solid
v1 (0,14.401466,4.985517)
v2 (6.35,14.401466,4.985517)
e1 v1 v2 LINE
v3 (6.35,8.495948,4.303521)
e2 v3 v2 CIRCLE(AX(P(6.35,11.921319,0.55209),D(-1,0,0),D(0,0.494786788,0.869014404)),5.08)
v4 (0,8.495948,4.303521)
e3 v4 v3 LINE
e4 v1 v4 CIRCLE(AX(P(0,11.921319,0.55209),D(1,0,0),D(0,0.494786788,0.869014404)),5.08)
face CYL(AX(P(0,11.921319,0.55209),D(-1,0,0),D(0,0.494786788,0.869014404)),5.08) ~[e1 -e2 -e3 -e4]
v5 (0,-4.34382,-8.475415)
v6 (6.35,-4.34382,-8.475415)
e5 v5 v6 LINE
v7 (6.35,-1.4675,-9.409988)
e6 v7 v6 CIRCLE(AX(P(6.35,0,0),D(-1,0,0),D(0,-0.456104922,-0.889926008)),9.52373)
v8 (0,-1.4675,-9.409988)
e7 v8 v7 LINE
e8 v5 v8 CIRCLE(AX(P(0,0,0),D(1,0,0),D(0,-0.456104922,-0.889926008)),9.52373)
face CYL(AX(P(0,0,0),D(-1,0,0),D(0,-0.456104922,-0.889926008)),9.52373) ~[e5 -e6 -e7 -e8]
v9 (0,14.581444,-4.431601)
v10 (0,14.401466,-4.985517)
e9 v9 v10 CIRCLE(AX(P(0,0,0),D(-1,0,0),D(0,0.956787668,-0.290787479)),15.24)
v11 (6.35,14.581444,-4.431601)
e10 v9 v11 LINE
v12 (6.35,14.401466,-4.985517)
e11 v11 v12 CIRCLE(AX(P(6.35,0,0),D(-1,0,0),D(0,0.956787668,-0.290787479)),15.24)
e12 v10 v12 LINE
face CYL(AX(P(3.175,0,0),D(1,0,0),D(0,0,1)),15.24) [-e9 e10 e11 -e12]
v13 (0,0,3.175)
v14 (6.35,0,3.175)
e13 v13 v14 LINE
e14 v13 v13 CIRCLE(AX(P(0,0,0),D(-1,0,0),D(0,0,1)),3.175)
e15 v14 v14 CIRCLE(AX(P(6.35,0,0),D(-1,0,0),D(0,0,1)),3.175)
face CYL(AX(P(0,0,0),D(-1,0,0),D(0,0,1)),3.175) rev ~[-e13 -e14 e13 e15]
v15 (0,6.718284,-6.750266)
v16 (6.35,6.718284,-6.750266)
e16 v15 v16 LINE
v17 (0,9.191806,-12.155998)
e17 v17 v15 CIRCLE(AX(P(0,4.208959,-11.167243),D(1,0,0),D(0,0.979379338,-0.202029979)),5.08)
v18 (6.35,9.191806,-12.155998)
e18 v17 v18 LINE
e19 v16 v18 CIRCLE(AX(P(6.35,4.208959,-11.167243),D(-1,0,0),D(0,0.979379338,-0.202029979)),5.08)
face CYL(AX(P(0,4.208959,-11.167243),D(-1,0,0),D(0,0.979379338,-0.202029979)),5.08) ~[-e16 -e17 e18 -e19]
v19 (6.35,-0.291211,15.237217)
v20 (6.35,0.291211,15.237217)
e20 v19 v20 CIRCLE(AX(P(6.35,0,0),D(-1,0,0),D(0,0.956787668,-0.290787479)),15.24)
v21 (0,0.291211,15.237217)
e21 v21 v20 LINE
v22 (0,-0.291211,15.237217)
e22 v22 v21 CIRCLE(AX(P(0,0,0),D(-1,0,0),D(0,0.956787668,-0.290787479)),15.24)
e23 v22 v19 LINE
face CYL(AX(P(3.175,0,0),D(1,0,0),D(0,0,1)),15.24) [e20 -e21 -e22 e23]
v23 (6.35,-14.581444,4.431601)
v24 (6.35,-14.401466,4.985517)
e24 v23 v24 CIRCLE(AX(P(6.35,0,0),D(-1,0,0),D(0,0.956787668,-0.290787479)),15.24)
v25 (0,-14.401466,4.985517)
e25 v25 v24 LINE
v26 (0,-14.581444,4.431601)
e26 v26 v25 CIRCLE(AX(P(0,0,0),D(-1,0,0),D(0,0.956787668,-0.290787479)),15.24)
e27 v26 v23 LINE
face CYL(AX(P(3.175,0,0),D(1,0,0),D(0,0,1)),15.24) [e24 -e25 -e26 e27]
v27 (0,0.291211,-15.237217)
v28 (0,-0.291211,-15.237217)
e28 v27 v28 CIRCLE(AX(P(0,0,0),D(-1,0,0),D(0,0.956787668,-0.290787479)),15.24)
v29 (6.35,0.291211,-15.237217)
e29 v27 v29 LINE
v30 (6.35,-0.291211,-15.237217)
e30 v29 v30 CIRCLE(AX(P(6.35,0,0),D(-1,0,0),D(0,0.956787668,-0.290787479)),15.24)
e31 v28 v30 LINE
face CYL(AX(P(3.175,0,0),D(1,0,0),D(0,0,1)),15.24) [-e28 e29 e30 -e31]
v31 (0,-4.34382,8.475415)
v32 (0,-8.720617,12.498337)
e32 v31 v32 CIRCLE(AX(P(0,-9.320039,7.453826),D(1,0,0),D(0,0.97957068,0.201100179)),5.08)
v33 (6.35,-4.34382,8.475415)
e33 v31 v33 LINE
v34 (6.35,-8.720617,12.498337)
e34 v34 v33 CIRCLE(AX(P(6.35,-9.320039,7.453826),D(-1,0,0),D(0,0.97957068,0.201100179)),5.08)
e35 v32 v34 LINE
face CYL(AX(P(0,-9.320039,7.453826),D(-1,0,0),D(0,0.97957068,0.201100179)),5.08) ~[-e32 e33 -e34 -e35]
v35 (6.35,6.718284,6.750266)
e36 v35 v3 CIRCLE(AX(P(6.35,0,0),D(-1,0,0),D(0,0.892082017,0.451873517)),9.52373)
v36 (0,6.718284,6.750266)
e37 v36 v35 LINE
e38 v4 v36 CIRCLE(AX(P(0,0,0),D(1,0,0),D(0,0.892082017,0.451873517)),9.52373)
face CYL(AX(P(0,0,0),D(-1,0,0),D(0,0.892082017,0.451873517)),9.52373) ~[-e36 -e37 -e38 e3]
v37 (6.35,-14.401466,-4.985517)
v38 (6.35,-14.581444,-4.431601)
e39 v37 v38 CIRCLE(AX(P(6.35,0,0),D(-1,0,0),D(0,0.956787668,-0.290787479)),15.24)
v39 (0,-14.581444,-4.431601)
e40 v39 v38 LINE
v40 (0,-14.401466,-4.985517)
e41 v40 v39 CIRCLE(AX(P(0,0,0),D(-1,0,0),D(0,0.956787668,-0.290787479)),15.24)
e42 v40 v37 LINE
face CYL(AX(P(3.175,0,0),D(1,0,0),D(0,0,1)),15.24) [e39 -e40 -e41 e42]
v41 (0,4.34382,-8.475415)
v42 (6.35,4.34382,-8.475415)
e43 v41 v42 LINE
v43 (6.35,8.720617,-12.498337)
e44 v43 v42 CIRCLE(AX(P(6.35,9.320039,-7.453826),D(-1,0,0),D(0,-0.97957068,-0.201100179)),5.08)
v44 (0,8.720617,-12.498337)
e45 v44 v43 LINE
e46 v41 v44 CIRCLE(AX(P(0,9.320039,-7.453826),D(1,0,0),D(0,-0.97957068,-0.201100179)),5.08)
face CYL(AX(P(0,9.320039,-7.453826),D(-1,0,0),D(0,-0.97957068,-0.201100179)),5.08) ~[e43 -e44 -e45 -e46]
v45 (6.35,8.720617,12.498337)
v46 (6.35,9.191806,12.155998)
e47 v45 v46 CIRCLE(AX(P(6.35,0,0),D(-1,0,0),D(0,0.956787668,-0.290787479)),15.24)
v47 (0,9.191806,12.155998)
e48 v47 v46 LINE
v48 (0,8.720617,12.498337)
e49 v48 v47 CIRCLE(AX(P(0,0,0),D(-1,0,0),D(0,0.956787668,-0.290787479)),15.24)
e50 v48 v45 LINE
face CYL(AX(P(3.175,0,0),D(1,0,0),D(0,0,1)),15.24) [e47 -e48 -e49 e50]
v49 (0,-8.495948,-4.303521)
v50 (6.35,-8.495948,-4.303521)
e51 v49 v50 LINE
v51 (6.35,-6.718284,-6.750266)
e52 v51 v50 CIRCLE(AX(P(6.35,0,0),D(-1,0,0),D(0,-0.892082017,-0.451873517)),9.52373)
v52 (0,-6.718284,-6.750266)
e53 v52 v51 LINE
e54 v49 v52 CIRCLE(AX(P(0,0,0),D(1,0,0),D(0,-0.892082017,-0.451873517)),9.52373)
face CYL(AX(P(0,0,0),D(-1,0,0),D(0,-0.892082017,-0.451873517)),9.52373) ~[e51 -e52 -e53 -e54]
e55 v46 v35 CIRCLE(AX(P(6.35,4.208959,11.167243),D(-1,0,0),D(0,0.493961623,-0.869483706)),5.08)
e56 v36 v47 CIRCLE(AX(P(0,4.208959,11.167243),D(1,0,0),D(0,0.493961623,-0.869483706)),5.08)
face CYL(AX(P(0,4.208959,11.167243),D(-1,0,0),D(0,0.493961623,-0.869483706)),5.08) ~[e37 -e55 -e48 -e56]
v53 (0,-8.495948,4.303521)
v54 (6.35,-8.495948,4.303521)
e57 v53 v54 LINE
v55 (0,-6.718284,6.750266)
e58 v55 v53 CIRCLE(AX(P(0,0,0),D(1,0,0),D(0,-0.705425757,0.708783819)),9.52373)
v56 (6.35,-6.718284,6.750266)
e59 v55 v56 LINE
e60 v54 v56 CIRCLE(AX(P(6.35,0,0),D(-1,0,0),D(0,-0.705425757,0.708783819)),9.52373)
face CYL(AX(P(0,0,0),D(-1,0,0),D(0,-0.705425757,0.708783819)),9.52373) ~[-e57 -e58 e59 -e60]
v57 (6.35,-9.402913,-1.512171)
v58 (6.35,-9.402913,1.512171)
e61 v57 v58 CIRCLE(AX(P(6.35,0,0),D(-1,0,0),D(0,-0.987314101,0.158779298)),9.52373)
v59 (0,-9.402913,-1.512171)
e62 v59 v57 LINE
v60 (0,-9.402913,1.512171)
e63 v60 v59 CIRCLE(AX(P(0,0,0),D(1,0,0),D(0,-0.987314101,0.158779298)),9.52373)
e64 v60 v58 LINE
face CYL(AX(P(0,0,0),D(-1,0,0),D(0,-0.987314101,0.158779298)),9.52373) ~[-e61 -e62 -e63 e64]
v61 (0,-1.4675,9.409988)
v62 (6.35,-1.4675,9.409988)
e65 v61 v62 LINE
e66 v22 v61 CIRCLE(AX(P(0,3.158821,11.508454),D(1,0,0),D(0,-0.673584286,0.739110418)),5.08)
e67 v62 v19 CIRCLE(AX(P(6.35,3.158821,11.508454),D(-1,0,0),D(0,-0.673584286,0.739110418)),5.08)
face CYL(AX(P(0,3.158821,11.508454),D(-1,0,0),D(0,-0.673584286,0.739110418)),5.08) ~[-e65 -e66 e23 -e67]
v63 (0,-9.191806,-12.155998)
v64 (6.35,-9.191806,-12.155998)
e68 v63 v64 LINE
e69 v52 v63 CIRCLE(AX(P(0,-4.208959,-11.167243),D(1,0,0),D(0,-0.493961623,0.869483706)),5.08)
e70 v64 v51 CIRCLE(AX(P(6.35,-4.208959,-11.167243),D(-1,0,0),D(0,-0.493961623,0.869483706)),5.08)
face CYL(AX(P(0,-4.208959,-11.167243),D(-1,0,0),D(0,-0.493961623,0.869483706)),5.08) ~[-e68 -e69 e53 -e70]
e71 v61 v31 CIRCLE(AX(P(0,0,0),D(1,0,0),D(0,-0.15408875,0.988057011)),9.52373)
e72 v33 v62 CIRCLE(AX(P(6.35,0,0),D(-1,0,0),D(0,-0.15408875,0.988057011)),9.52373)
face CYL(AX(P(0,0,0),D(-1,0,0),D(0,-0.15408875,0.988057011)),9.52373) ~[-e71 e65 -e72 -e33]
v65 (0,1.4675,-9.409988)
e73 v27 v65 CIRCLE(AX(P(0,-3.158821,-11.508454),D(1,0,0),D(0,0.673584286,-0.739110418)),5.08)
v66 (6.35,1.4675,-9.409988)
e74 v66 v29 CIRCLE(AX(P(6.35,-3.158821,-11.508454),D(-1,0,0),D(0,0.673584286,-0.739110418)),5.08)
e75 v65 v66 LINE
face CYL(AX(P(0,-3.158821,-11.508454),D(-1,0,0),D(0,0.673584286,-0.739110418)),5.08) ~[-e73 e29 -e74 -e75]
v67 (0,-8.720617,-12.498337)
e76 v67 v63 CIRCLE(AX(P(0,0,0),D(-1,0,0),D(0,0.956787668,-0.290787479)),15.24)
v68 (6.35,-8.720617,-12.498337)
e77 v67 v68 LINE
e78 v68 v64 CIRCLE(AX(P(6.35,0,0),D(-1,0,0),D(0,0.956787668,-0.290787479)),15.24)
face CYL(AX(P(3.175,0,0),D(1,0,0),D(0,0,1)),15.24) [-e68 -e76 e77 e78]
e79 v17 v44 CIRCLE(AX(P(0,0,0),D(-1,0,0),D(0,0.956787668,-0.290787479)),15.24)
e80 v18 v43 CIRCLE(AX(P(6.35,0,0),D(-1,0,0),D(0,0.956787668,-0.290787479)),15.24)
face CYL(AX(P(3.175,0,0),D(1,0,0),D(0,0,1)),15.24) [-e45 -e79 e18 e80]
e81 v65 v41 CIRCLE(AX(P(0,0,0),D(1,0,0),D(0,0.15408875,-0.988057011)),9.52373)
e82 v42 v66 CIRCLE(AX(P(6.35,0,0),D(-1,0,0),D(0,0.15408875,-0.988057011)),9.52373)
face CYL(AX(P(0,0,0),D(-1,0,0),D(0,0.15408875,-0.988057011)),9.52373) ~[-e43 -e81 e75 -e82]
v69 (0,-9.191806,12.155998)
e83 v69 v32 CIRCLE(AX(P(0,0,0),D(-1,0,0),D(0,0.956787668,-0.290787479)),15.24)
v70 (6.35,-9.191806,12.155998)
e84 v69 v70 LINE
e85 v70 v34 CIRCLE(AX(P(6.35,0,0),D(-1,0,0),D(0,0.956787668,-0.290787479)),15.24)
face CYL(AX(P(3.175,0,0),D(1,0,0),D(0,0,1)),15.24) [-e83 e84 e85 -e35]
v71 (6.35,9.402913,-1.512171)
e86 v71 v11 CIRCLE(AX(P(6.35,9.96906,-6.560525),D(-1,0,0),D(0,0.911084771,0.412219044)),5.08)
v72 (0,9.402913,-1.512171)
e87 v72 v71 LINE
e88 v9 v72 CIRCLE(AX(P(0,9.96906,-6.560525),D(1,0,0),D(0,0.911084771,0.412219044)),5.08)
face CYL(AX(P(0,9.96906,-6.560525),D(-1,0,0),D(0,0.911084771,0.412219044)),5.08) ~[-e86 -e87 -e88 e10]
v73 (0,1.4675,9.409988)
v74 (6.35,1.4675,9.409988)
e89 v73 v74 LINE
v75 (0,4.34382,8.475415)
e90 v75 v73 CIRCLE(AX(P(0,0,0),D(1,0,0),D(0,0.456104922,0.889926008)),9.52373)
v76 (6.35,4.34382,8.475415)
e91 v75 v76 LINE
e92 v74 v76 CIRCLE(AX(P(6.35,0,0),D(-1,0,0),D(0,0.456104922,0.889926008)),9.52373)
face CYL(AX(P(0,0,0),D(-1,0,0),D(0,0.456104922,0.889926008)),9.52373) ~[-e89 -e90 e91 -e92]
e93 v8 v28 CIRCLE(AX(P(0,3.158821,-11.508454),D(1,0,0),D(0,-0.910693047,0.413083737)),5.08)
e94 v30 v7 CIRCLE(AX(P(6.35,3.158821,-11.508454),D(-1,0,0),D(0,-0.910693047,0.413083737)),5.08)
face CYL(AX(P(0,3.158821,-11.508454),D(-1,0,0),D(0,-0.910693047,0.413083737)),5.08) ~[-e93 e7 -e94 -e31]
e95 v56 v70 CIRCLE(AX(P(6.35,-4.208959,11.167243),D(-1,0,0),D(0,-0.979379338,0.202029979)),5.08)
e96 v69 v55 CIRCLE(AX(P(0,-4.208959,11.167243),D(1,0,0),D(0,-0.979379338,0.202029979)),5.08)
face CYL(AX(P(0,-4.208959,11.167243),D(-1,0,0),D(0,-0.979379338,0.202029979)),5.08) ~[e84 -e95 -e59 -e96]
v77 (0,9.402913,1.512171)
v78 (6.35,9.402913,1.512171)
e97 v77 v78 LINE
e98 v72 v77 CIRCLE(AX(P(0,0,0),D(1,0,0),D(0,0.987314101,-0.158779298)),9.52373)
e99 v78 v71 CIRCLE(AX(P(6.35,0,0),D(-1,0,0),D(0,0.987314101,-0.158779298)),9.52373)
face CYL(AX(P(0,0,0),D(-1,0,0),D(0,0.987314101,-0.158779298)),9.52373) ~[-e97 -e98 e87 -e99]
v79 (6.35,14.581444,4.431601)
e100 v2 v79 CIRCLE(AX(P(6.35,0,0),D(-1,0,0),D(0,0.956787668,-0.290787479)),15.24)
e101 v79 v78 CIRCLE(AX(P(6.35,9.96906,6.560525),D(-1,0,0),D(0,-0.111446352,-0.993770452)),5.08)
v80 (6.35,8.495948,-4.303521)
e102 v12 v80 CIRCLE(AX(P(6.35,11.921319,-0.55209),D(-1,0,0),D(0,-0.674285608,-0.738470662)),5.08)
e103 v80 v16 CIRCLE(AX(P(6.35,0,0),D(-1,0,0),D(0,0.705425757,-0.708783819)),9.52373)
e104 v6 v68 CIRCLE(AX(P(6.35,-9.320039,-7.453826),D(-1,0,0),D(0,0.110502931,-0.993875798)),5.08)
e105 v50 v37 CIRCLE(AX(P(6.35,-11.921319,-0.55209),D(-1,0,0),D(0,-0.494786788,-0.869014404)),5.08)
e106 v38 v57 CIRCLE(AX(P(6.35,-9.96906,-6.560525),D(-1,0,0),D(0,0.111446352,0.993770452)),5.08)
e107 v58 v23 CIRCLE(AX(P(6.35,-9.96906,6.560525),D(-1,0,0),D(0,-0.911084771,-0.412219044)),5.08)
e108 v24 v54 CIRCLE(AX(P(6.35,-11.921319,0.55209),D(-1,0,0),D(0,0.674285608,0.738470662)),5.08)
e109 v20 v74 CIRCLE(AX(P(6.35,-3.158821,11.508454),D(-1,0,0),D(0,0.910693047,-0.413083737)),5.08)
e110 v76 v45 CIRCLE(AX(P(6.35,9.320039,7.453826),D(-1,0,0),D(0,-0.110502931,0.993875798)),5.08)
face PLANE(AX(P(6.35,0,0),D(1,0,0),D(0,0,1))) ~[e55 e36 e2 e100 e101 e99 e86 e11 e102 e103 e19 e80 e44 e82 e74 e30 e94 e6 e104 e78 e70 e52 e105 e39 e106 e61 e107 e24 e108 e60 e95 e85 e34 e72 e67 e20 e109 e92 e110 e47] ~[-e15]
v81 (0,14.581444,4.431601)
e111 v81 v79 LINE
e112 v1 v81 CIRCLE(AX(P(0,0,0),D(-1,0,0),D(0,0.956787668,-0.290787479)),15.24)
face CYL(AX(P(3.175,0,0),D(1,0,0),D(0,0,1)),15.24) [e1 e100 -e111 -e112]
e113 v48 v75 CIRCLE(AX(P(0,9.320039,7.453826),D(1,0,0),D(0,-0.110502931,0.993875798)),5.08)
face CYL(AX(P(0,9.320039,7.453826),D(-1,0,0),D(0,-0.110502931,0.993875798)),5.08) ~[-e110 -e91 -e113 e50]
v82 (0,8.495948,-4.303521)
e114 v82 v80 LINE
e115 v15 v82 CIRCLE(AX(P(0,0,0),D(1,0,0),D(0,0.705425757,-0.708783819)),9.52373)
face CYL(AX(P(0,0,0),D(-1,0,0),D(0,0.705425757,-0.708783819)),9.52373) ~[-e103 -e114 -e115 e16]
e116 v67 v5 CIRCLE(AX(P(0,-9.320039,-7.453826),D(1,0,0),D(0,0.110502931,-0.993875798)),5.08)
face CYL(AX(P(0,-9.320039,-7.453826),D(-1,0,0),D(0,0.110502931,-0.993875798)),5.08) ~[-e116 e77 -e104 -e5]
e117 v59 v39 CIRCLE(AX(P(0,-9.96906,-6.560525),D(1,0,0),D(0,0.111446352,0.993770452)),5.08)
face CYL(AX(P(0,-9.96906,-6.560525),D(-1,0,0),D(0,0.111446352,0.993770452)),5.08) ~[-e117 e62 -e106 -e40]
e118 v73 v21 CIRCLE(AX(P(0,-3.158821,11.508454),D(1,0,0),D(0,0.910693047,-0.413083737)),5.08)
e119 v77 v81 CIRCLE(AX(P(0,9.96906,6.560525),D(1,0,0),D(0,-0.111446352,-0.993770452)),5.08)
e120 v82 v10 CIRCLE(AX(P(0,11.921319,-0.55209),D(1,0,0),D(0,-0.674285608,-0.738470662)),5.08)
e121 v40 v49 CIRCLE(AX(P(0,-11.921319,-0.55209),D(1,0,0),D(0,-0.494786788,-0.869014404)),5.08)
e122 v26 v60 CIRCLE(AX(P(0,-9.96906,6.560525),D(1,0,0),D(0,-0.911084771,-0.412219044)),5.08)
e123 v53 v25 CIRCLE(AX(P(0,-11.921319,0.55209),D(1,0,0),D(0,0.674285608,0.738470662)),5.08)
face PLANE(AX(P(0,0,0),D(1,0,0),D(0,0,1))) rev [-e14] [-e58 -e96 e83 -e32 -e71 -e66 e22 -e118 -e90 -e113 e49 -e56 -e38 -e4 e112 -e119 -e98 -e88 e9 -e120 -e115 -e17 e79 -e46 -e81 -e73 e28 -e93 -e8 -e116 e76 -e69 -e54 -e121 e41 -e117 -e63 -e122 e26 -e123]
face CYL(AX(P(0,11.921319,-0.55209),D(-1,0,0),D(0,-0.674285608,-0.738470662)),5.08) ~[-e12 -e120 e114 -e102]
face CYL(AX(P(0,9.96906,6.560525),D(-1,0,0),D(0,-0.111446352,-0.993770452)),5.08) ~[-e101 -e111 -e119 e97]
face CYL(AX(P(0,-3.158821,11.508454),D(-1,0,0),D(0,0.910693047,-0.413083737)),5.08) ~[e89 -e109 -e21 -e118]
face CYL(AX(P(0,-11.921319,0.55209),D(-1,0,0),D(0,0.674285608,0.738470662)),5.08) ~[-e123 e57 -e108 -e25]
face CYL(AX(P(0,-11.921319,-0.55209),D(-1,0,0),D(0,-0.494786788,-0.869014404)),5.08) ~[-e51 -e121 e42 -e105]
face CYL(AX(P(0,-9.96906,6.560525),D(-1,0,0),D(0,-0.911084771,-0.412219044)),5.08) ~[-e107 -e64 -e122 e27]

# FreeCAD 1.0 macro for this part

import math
import FreeCAD as App
import Part
import Sketcher
from FreeCAD import Vector
Q = App.Units.Quantity

doc = App.newDocument("Part")
params = doc.addObject("Spreadsheet::Sheet", "Params")
for row, (alias, value) in enumerate([
    ("sketch1_height", "0.6 in"),
    ("sketch1_width", "0.25 in"),
    ("revolution_angle", "360 deg"),
    ("sketch2_radius", "0.2 in"),
    ("sketch2_radius2", "0.601 in"),
    ("sketch3_diameter", "0.03125 in"),
    ("pocket2_length", "101.600102 mm"),
    ("sketch4_height", "0.01 in"),
    ("pocket3_length", "101.600102 mm"),
    ("sketch5_diameter", "0.25 in"),
], start=1):
    params.set(f"A{row}", alias)
    params.set(f"B{row}", "=" + value)
    params.setAlias(f"B{row}", alias)

body = doc.addObject("PartDesign::Body", "Body")

sketch1 = body.newObject("Sketcher::SketchObject", "Sketch")
sketch1.AttachmentSupport = (doc.getObject("XZ_Plane"), [""])
sketch1.MapMode = "FlatFace"
sketch1.addGeometry(Part.LineSegment(Vector(0, -15, 0), Vector(0, 0, 0)), False)
sketch1.addGeometry(Part.LineSegment(Vector(0, 0, 0), Vector(6, 0, 0)), False)
sketch1.addGeometry(Part.LineSegment(Vector(6, 0, 0), Vector(6, -15, 0)), False)
sketch1.addGeometry(Part.LineSegment(Vector(6, -15, 0), Vector(0, -15, 0)), False)
sketch1.addConstraint(Sketcher.Constraint("Coincident", 0, 2, 1, 1))
sketch1.addConstraint(Sketcher.Constraint("Coincident", 1, 2, 2, 1))
sketch1.addConstraint(Sketcher.Constraint("Coincident", 2, 2, 3, 1))
sketch1.addConstraint(Sketcher.Constraint("Coincident", 3, 2, 0, 1))
sketch1.addConstraint(Sketcher.Constraint("Vertical", 0))
sketch1.addConstraint(Sketcher.Constraint("Horizontal", 1))
sketch1.addConstraint(Sketcher.Constraint("Vertical", 2))
sketch1.addConstraint(Sketcher.Constraint("Horizontal", 3))
sketch1.addConstraint(Sketcher.Constraint("Coincident", 0, 2, -1, 1))
sketch1.addConstraint(Sketcher.Constraint("DistanceY", 0, 1, 0, 2, Q("0.6 in")))
sketch1.addConstraint(Sketcher.Constraint("DistanceX", 1, 1, 1, 2, Q("0.25 in")))
sketch1.setExpression("Constraints[9]", "Params.sketch1_height")
sketch1.setExpression("Constraints[10]", "Params.sketch1_width")
revolution = body.newObject("PartDesign::Revolution", "Revolution")
revolution.Profile = sketch1
revolution.ReferenceAxis = (sketch1, ["H_Axis"])
revolution.setExpression("Angle", "Params.revolution_angle")

sketch2 = body.newObject("Sketcher::SketchObject", "Sketch001")
sketch2.AttachmentSupport = (doc.getObject("YZ_Plane"), [""])
sketch2.MapMode = "FlatFace"
sketch2.addGeometry(Part.ArcOfCircle(Part.Circle(Vector(0, 0, 0), Vector(0, 0, 1), 9.5), math.radians(-9.14), math.radians(9.14)), False)
sketch2.addGeometry(Part.ArcOfCircle(Part.Circle(Vector(10, -6.6, 0), Vector(0, 0, 1), 5.1), math.radians(24), math.radians(96)), False)
sketch2.addGeometry(Part.ArcOfCircle(Part.Circle(Vector(0, 0, 0), Vector(0, 0, 1), 15.3), math.radians(-17), math.radians(17)), False)
sketch2.addGeometry(Part.ArcOfCircle(Part.Circle(Vector(10, 6.6, 0), Vector(0, 0, 1), 5.1), math.radians(-96), math.radians(-24)), False)
sketch2.addConstraint(Sketcher.Constraint("Coincident", 0, 1, 1, 2))
sketch2.addConstraint(Sketcher.Constraint("Coincident", 1, 1, 2, 1))
sketch2.addConstraint(Sketcher.Constraint("Coincident", 2, 2, 3, 2))
sketch2.addConstraint(Sketcher.Constraint("Coincident", 3, 1, 0, 2))
sketch2.addConstraint(Sketcher.Constraint("Coincident", 0, 3, -1, 1))
sketch2.addConstraint(Sketcher.Constraint("Coincident", 2, 3, -1, 1))
sketch2.addConstraint(Sketcher.Constraint("Equal", 1, 3))
sketch2.addConstraint(Sketcher.Constraint("Symmetric", 1, 3, 3, 3, -1))
sketch2.addConstraint(Sketcher.Constraint("Radius", 1, Q("0.2 in")))
sketch2.addConstraint(Sketcher.Constraint("Radius", 2, Q("0.601 in")))
sketch2.addConstraint(Sketcher.Constraint("Radius", 0, Q("9.52373 mm")))
sketch2.addConstraint(Sketcher.Constraint("DistanceX", -1, 1, 1, 3, Q("9.96906 mm")))
sketch2.addConstraint(Sketcher.Constraint("DistanceY", 0, 1, -1, 1, Q("1.512171 mm")))
sketch2.setExpression("Constraints[8]", "Params.sketch2_radius")
sketch2.setExpression("Constraints[9]", "Params.sketch2_radius2")
pocket1 = body.newObject("PartDesign::Pocket", "Pocket")
pocket1.Profile = sketch2
pocket1.Type = "ThroughAll"
pocket1.Reversed = True
doc.recompute()

polarpattern = body.newObject("PartDesign::PolarPattern", "PolarPattern")
polarpattern.Originals = [pocket1]
polarpattern.Axis = (doc.getObject("X_Axis"), [""])
polarpattern.Angle = 360
polarpattern.Occurrences = 10
body.Tip = polarpattern

sketch3 = body.newObject("Sketcher::SketchObject", "Sketch002")
sketch3.AttachmentSupport = (doc.getObject("YZ_Plane"), [""])
sketch3.MapMode = "FlatFace"
sketch3.addGeometry(Part.Circle(Vector(0, 0, 0), Vector(0, 0, 1), 0.4), False)
sketch3.addConstraint(Sketcher.Constraint("Coincident", 0, 3, -1, 1))
sketch3.addConstraint(Sketcher.Constraint("Diameter", 0, Q("0.03125 in")))
sketch3.setExpression("Constraints[1]", "Params.sketch3_diameter")
pocket2 = body.newObject("PartDesign::Pocket", "Pocket001")
pocket2.Profile = sketch3
pocket2.setExpression("Length", "Params.pocket2_length")
pocket2.Midplane = True

sketch4 = body.newObject("Sketcher::SketchObject", "Sketch003")
sketch4.AttachmentSupport = (doc.getObject("YZ_Plane"), [""])
sketch4.MapMode = "FlatFace"
sketch4.addGeometry(Part.LineSegment(Vector(0.62, 0.13, 0), Vector(0, 0.13, 0)), False)
sketch4.addGeometry(Part.LineSegment(Vector(0, 0.13, 0), Vector(0, -0.13, 0)), False)
sketch4.addGeometry(Part.LineSegment(Vector(0, -0.13, 0), Vector(0.62, -0.13, 0)), False)
sketch4.addGeometry(Part.LineSegment(Vector(0.62, -0.13, 0), Vector(0.62, 0.13, 0)), False)
sketch4.addConstraint(Sketcher.Constraint("Coincident", 0, 2, 1, 1))
sketch4.addConstraint(Sketcher.Constraint("Coincident", 1, 2, 2, 1))
sketch4.addConstraint(Sketcher.Constraint("Coincident", 2, 2, 3, 1))
sketch4.addConstraint(Sketcher.Constraint("Coincident", 3, 2, 0, 1))
sketch4.addConstraint(Sketcher.Constraint("Horizontal", 0))
sketch4.addConstraint(Sketcher.Constraint("Vertical", 1))
sketch4.addConstraint(Sketcher.Constraint("Horizontal", 2))
sketch4.addConstraint(Sketcher.Constraint("Vertical", 3))
sketch4.addConstraint(Sketcher.Constraint("Symmetric", 0, 2, 1, 2, -1, 1))
sketch4.addConstraint(Sketcher.Constraint("DistanceY", 1, 2, 1, 1, Q("0.01 in")))
sketch4.addConstraint(Sketcher.Constraint("DistanceX", 0, 2, 0, 1, Q("0.619125 mm")))
sketch4.setExpression("Constraints[9]", "Params.sketch4_height")
pocket3 = body.newObject("PartDesign::Pocket", "Pocket002")
pocket3.Profile = sketch4
pocket3.setExpression("Length", "Params.pocket3_length")
pocket3.Midplane = True

sketch5 = body.newObject("Sketcher::SketchObject", "Sketch004")
sketch5.AttachmentSupport = (doc.getObject("YZ_Plane"), [""])
sketch5.MapMode = "FlatFace"
sketch5.addGeometry(Part.Circle(Vector(0, 0, 0), Vector(0, 0, 1), 3.2), False)
sketch5.addConstraint(Sketcher.Constraint("Coincident", 0, 3, -1, 1))
sketch5.addConstraint(Sketcher.Constraint("Diameter", 0, Q("0.25 in")))
sketch5.setExpression("Constraints[1]", "Params.sketch5_diameter")
pocket4 = body.newObject("PartDesign::Pocket", "Pocket003")
pocket4.Profile = sketch5
pocket4.Type = "ThroughAll"
pocket4.Reversed = True

doc.recompute()
